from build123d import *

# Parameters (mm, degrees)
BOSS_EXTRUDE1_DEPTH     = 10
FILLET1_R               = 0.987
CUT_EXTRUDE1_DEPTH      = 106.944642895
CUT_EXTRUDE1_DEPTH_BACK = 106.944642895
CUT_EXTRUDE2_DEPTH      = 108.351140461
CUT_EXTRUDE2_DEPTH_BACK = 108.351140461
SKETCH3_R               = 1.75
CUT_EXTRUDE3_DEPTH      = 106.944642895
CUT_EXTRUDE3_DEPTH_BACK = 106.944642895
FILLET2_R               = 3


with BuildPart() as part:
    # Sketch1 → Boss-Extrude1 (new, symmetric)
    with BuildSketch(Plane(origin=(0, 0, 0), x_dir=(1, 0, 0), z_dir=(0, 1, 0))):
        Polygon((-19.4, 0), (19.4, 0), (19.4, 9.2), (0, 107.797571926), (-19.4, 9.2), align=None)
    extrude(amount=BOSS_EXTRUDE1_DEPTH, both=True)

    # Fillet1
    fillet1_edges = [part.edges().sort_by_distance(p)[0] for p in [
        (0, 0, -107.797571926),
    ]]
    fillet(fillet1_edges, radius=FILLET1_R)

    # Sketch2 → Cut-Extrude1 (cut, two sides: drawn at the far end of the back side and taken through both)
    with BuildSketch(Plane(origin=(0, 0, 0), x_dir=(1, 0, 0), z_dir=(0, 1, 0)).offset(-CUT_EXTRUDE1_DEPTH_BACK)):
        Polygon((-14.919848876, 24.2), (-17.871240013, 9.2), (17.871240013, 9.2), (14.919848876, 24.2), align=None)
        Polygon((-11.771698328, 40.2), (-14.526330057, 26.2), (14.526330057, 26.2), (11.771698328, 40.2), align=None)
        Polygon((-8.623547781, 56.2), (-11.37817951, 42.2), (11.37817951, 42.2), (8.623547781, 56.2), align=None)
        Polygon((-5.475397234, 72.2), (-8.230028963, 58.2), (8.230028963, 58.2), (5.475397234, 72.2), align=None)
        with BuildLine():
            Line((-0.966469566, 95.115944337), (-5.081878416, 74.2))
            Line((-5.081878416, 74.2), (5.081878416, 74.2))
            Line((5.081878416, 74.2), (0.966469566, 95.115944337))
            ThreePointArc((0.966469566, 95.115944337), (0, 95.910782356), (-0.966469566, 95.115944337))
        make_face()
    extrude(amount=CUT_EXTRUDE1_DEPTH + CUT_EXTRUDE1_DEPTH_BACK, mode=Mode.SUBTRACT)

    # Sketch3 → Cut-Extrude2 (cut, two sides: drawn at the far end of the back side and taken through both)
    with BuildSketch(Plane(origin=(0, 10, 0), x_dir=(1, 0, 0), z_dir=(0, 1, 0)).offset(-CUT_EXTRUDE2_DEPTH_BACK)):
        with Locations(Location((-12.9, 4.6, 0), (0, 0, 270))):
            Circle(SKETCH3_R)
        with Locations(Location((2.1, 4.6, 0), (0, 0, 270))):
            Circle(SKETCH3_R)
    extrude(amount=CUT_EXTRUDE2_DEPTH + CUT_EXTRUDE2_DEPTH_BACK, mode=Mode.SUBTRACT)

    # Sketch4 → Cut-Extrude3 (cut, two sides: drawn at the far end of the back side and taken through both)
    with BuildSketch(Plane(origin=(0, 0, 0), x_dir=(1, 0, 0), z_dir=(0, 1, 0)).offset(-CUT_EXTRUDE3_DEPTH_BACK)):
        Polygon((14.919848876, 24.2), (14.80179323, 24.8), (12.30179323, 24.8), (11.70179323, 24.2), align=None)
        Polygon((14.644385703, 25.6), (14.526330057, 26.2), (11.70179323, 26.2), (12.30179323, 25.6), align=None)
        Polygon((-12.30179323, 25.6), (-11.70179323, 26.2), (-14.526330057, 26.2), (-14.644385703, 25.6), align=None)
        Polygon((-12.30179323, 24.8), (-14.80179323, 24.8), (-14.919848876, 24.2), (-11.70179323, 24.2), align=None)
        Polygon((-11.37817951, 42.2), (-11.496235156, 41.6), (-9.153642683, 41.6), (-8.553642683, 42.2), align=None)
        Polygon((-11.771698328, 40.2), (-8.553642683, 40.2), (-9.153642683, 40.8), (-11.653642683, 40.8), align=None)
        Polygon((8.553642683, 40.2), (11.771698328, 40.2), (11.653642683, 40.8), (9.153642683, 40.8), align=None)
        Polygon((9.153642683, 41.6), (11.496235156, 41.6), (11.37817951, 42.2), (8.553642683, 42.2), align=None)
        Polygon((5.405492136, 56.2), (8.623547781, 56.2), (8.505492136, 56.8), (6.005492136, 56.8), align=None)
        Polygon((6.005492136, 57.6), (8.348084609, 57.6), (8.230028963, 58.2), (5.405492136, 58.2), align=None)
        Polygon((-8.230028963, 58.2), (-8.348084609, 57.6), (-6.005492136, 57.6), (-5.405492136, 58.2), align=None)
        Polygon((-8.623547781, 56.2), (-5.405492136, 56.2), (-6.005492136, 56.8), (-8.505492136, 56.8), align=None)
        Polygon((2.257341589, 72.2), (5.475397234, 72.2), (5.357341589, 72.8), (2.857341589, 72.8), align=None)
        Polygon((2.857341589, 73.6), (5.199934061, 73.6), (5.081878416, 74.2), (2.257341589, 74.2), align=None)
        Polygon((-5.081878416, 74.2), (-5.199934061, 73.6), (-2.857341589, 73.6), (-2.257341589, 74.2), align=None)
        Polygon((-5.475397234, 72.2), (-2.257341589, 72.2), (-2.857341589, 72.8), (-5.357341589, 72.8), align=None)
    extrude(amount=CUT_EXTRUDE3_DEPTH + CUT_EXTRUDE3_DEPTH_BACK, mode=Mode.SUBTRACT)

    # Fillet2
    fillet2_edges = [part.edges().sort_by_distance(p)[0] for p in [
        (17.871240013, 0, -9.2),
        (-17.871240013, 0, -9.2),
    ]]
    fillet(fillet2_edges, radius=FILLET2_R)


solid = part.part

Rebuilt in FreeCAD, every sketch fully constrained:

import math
import FreeCAD as App
import Part
import Sketcher
Q = App.Units.Quantity


def edges_at(feature, points):
    """Names of the edges that pass closest to the given points."""
    edges = feature.Shape.Edges
    near = lambda p: min(range(len(edges)), key=lambda i: edges[i].distToShape(Part.Vertex(*p))[0])
    return sorted({f"Edge{near(p) + 1}" for p in points})


def add_polygon(sketch, points):
    """Adds a closed chain of lines whose ends are joined by coincident constraints."""
    first, n = sketch.GeometryCount, len(points)
    for a, b in zip(points, points[1:] + points[:1]):
        sketch.addGeometry(Part.LineSegment(App.Vector(*a, 0), App.Vector(*b, 0)), False)
    for i in range(n):
        sketch.addConstraint(Sketcher.Constraint("Coincident", first + i, 2, first + (i + 1) % n, 1))

doc = App.newDocument("Part")
body = doc.addObject("PartDesign::Body", "Body")

sketch1 = body.newObject("Sketcher::SketchObject", "Sketch")
sketch1.AttachmentSupport = (doc.getObject("XZ_Plane"), [""])
sketch1.MapMode = "FlatFace"
add_polygon(sketch1, [(-19, 0), (19, 0), (19, -9), (0, -108), (-19, -9)])
sketch1.addConstraint([
    Sketcher.Constraint("Horizontal", 0),
    Sketcher.Constraint("Vertical", 1),
    Sketcher.Constraint("Vertical", 4),
    Sketcher.Constraint("Symmetric", 0, 2, 4, 2, -1, 1),
    Sketcher.Constraint("PointOnObject", 2, 2, -2),
    Sketcher.Constraint("Horizontal", 1, 2, 3, 2),
    Sketcher.Constraint("DistanceX", 0, 1, 0, 2, Q("38.8 mm")),
    Sketcher.Constraint("DistanceY", 1, 2, 1, 1, Q("9.2 mm")),
    Sketcher.Constraint("DistanceY", 2, 2, -1, 1, Q("107.797572 mm")),
])
pad1 = body.newObject("PartDesign::Pad", "Pad")
pad1.Profile = sketch1
pad1.Length = 20
pad1.Midplane = True
doc.recompute()

fillet = body.newObject("PartDesign::Fillet", "Fillet")
fillet.Base = (pad1, edges_at(pad1, [(0, 0, -107.798)]))
fillet.Radius = 0.987

sketch2 = body.newObject("Sketcher::SketchObject", "Sketch001")
sketch2.AttachmentSupport = (doc.getObject("XZ_Plane"), [""])
sketch2.MapMode = "FlatFace"
add_polygon(sketch2, [(-14.9, -24.2), (-17.9, -9.2), (17.9, -9.2), (14.9, -24.2)])
add_polygon(sketch2, [(-11.8, -40.2), (-14.5, -26.2), (14.5, -26.2), (11.8, -40.2)])
add_polygon(sketch2, [(-8.6, -56.2), (-11.4, -42.2), (11.4, -42.2), (8.6, -56.2)])
add_polygon(sketch2, [(-5.5, -72.2), (-8.2, -58.2), (8.2, -58.2), (5.5, -72.2)])
sketch2.addGeometry(Part.LineSegment(App.Vector(-1, -95.1, 0), App.Vector(-5.1, -74.2, 0)), False)
sketch2.addGeometry(Part.LineSegment(App.Vector(-5.1, -74.2, 0), App.Vector(5.1, -74.2, 0)), False)
sketch2.addGeometry(Part.LineSegment(App.Vector(5.1, -74.2, 0), App.Vector(1, -95.1, 0)), False)
sketch2.addGeometry(Part.ArcOfCircle(Part.Circle(App.Vector(0, -94.9, 0), App.Vector(0, 0, 1), 1), math.radians(-169), math.radians(-11)), False)
sketch2.addConstraint([
    Sketcher.Constraint("Coincident", 16, 2, 17, 1),
    Sketcher.Constraint("Coincident", 17, 2, 18, 1),
    Sketcher.Constraint("Tangent", 18, 2, 19, 2),
    Sketcher.Constraint("Tangent", 19, 1, 16, 1),
    Sketcher.Constraint("Horizontal", 1),
    Sketcher.Constraint("Horizontal", 3),
    Sketcher.Constraint("Horizontal", 5),
    Sketcher.Constraint("Horizontal", 7),
    Sketcher.Constraint("Horizontal", 9),
    Sketcher.Constraint("Horizontal", 11),
    Sketcher.Constraint("Horizontal", 13),
    Sketcher.Constraint("Horizontal", 15),
    Sketcher.Constraint("Horizontal", 17),
    Sketcher.Constraint("Symmetric", 18, 2, 19, 1, -2),
    Sketcher.Constraint("Parallel", 0, 4),
    Sketcher.Constraint("Parallel", 2, 6),
    Sketcher.Constraint("Parallel", 4, 8),
    Sketcher.Constraint("Parallel", 6, 10),
    Sketcher.Constraint("Parallel", 8, 12),
    Sketcher.Constraint("Parallel", 10, 14),
    Sketcher.Constraint("Parallel", 12, 16),
    Sketcher.Constraint("Parallel", 14, 18),
    Sketcher.Constraint("Equal", 6, 8),
    Sketcher.Constraint("Equal", 10, 12),
    Sketcher.Constraint("Radius", 19, Q("0.985 mm")),
    Sketcher.Constraint("DistanceY", 2, 2, 1, 2, Q("15 mm")),
    Sketcher.Constraint("DistanceY", 4, 2, 3, 2, Q("2 mm")),
    Sketcher.Constraint("DistanceY", 6, 2, 5, 2, Q("14 mm")),
    Sketcher.Constraint("DistanceY", 8, 2, 7, 2, Q("2 mm")),
    Sketcher.Constraint("DistanceY", 12, 2, 11, 2, Q("2 mm")),
    Sketcher.Constraint("DistanceY", 16, 2, 15, 2, Q("2 mm")),
    Sketcher.Constraint("DistanceY", 0, 2, -1, 1, Q("9.2 mm")),
    Sketcher.Constraint("Distance", 0, Q("15.2876 mm")),
    Sketcher.Constraint("DistanceX", 1, 1, 1, 2, Q("35.74248 mm")),
    Sketcher.Constraint("DistanceX", 5, 1, 5, 2, Q("29.05266 mm")),
    Sketcher.Constraint("DistanceX", 9, 1, 9, 2, Q("22.756359 mm")),
    Sketcher.Constraint("DistanceX", -1, 1, 6, 2, Q("11.771698 mm")),
    Sketcher.Constraint("DistanceX", 13, 1, 13, 2, Q("16.460058 mm")),
    Sketcher.Constraint("DistanceX", 17, 1, 17, 2, Q("10.163757 mm")),
    Sketcher.Constraint("DistanceX", 0, 2, -1, 1, Q("17.87124 mm")),
    Sketcher.Constraint("DistanceX", 8, 2, -1, 1, Q("11.37818 mm")),
    Sketcher.Constraint("DistanceX", 12, 2, -1, 1, Q("8.230029 mm")),
])
pocket1 = body.newObject("PartDesign::Pocket", "Pocket")
pocket1.Profile = sketch2
pocket1.Type = "ThroughAll"
pocket1.Midplane = True

sketch3 = body.newObject("Sketcher::SketchObject", "Sketch002")
sketch3.AttachmentSupport = (doc.getObject("XZ_Plane"), [""])
sketch3.MapMode = "FlatFace"
sketch3.AttachmentOffset = App.Placement(App.Vector(0, 0, -10), App.Rotation())
sketch3.addGeometry([
    Part.Circle(App.Vector(-12.9, -4.6, 0), App.Vector(0, 0, 1), 1.8),
    Part.Circle(App.Vector(2.1, -4.6, 0), App.Vector(0, 0, 1), 1.8),
], False)
sketch3.addConstraint([
    Sketcher.Constraint("Equal", 0, 1),
    Sketcher.Constraint("Horizontal", 0, 3, 1, 3),
    Sketcher.Constraint("Diameter", 0, Q("3.5 mm")),
    Sketcher.Constraint("DistanceX", 0, 3, 1, 3, Q("15 mm")),
    Sketcher.Constraint("DistanceX", 0, 3, -1, 1, Q("12.9 mm")),
    Sketcher.Constraint("DistanceY", 0, 3, -1, 1, Q("4.6 mm")),
])
pocket2 = body.newObject("PartDesign::Pocket", "Pocket001")
pocket2.Profile = sketch3
pocket2.Type = "ThroughAll"
pocket2.Midplane = True

sketch4 = body.newObject("Sketcher::SketchObject", "Sketch003")
sketch4.AttachmentSupport = (doc.getObject("XZ_Plane"), [""])
sketch4.MapMode = "FlatFace"
add_polygon(sketch4, [(14.9, -24.2), (14.8, -24.8), (12.3, -24.8), (11.7, -24.2)])
add_polygon(sketch4, [(14.6, -25.6), (14.5, -26.2), (11.7, -26.2), (12.3, -25.6)])
add_polygon(sketch4, [(-12.3, -25.6), (-11.7, -26.2), (-14.5, -26.2), (-14.6, -25.6)])
add_polygon(sketch4, [(-12.3, -24.8), (-14.8, -24.8), (-14.9, -24.2), (-11.7, -24.2)])
add_polygon(sketch4, [(-11.4, -42.2), (-11.5, -41.6), (-9.2, -41.6), (-8.6, -42.2)])
add_polygon(sketch4, [(-11.8, -40.2), (-8.6, -40.2), (-9.2, -40.8), (-11.7, -40.8)])
add_polygon(sketch4, [(8.6, -40.2), (11.8, -40.2), (11.7, -40.8), (9.2, -40.8)])
add_polygon(sketch4, [(9.2, -41.6), (11.5, -41.6), (11.4, -42.2), (8.6, -42.2)])
add_polygon(sketch4, [(5.4, -56.2), (8.6, -56.2), (8.5, -56.8), (6, -56.8)])
add_polygon(sketch4, [(6, -57.6), (8.3, -57.6), (8.2, -58.2), (5.4, -58.2)])
add_polygon(sketch4, [(-8.2, -58.2), (-8.3, -57.6), (-6, -57.6), (-5.4, -58.2)])
add_polygon(sketch4, [(-8.6, -56.2), (-5.4, -56.2), (-6, -56.8), (-8.5, -56.8)])
add_polygon(sketch4, [(2.3, -72.2), (5.5, -72.2), (5.4, -72.8), (2.9, -72.8)])
add_polygon(sketch4, [(2.9, -73.6), (5.2, -73.6), (5.1, -74.2), (2.3, -74.2)])
add_polygon(sketch4, [(-5.1, -74.2), (-5.2, -73.6), (-2.9, -73.6), (-2.3, -74.2)])
add_polygon(sketch4, [(-5.5, -72.2), (-2.3, -72.2), (-2.9, -72.8), (-5.4, -72.8)])
sketch4.addConstraint([
    Sketcher.Constraint("Horizontal", 1),
    Sketcher.Constraint("Horizontal", 3),
    Sketcher.Constraint("Horizontal", 5),
    Sketcher.Constraint("Horizontal", 7),
    Sketcher.Constraint("Horizontal", 9),
    Sketcher.Constraint("Horizontal", 11),
    Sketcher.Constraint("Horizontal", 12),
    Sketcher.Constraint("Horizontal", 14),
    Sketcher.Constraint("Horizontal", 17),
    Sketcher.Constraint("Horizontal", 19),
    Sketcher.Constraint("Horizontal", 20),
    Sketcher.Constraint("Horizontal", 22),
    Sketcher.Constraint("Horizontal", 24),
    Sketcher.Constraint("Horizontal", 26),
    Sketcher.Constraint("Horizontal", 28),
    Sketcher.Constraint("Horizontal", 30),
    Sketcher.Constraint("Horizontal", 32),
    Sketcher.Constraint("Horizontal", 34),
    Sketcher.Constraint("Horizontal", 36),
    Sketcher.Constraint("Horizontal", 38),
    Sketcher.Constraint("Horizontal", 41),
    Sketcher.Constraint("Horizontal", 43),
    Sketcher.Constraint("Horizontal", 44),
    Sketcher.Constraint("Horizontal", 46),
    Sketcher.Constraint("Horizontal", 48),
    Sketcher.Constraint("Horizontal", 50),
    Sketcher.Constraint("Horizontal", 52),
    Sketcher.Constraint("Horizontal", 54),
    Sketcher.Constraint("Horizontal", 57),
    Sketcher.Constraint("Horizontal", 59),
    Sketcher.Constraint("Horizontal", 60),
    Sketcher.Constraint("Horizontal", 62),
    Sketcher.Constraint("Symmetric", 5, 2, 8, 2, -2),
    Sketcher.Constraint("Symmetric", 7, 2, 10, 2, -2),
    Sketcher.Constraint("Symmetric", 0, 2, 12, 2, -2),
    Sketcher.Constraint("Symmetric", 3, 2, 13, 2, -2),
    Sketcher.Constraint("Symmetric", 23, 2, 24, 2, -2),
    Sketcher.Constraint("Symmetric", 22, 2, 25, 2, -2),
    Sketcher.Constraint("Symmetric", 16, 2, 28, 2, -2),
    Sketcher.Constraint("Symmetric", 19, 2, 29, 2, -2),
    Sketcher.Constraint("Symmetric", 36, 2, 40, 2, -2),
    Sketcher.Constraint("Symmetric", 38, 2, 42, 2, -2),
    Sketcher.Constraint("Symmetric", 35, 2, 44, 2, -2),
    Sketcher.Constraint("Symmetric", 34, 2, 45, 2, -2),
    Sketcher.Constraint("Symmetric", 52, 2, 56, 2, -2),
    Sketcher.Constraint("Symmetric", 54, 2, 58, 2, -2),
    Sketcher.Constraint("Symmetric", 51, 2, 60, 2, -2),
    Sketcher.Constraint("Symmetric", 50, 2, 61, 2, -2),
    Sketcher.Constraint("Parallel", 0, 4),
    Sketcher.Constraint("Perpendicular", 2, 6),
    Sketcher.Constraint("Perpendicular", 6, 8),
    Sketcher.Constraint("Parallel", 10, 13),
    Sketcher.Constraint("Perpendicular", 8, 15),
    Sketcher.Constraint("Parallel", 13, 16),
    Sketcher.Constraint("Perpendicular", 15, 18),
    Sketcher.Constraint("Perpendicular", 18, 21),
    Sketcher.Constraint("Parallel", 16, 23),
    Sketcher.Constraint("Perpendicular", 21, 27),
    Sketcher.Constraint("Perpendicular", 27, 31),
    Sketcher.Constraint("Parallel", 29, 33),
    Sketcher.Constraint("Perpendicular", 31, 35),
    Sketcher.Constraint("Parallel", 33, 37),
    Sketcher.Constraint("Perpendicular", 35, 39),
    Sketcher.Constraint("Parallel", 23, 40),
    Sketcher.Constraint("Perpendicular", 39, 42),
    Sketcher.Constraint("Perpendicular", 42, 45),
    Sketcher.Constraint("Parallel", 40, 47),
    Sketcher.Constraint("Parallel", 37, 49),
    Sketcher.Constraint("Perpendicular", 45, 51),
    Sketcher.Constraint("Parallel", 49, 53),
    Sketcher.Constraint("Perpendicular", 51, 55),
    Sketcher.Constraint("Parallel", 47, 56),
    Sketcher.Constraint("Perpendicular", 55, 58),
    Sketcher.Constraint("Parallel", 56, 63),
    Sketcher.Constraint("Vertical", 2, 2, 5, 2),
    Sketcher.Constraint("Vertical", 1, 2, 6, 2),
    Sketcher.Constraint("Vertical", 8, 2, 14, 2),
    Sketcher.Constraint("Vertical", 18, 2, 20, 2),
    Sketcher.Constraint("Vertical", 17, 2, 21, 2),
    Sketcher.Constraint("Vertical", 27, 2, 30, 2),
    Sketcher.Constraint("Vertical", 35, 2, 38, 2),
    Sketcher.Constraint("Vertical", 34, 2, 39, 2),
    Sketcher.Constraint("Vertical", 51, 2, 54, 2),
    Sketcher.Constraint("Vertical", 50, 2, 55, 2),
    Sketcher.Constraint("Equal", 11, 17),
    Sketcher.Constraint("Equal", 9, 19),
    Sketcher.Constraint("Equal", 14, 20),
    Sketcher.Constraint("Equal", 20, 24),
    Sketcher.Constraint("Equal", 24, 32),
    Sketcher.Constraint("Equal", 26, 34),
    Sketcher.Constraint("Equal", 28, 36),
    Sketcher.Constraint("Equal", 32, 44),
    Sketcher.Constraint("Equal", 44, 48),
    Sketcher.Constraint("Equal", 46, 50),
    Sketcher.Constraint("Equal", 41, 52),
    Sketcher.Constraint("Equal", 48, 60),
    Sketcher.Constraint("DistanceX", 1, 2, 1, 1, Q("2.5 mm")),
    Sketcher.Constraint("DistanceY", 0, 2, -1, 1, Q("24.8 mm")),
    Sketcher.Constraint("DistanceY", 2, 2, -1, 1, Q("24.2 mm")),
    Sketcher.Constraint("DistanceY", 4, 2, -1, 1, Q("26.2 mm")),
    Sketcher.Constraint("DistanceY", 16, 2, -1, 1, Q("41.6 mm")),
    Sketcher.Constraint("DistanceY", 20, 2, -1, 1, Q("40.2 mm")),
    Sketcher.Constraint("DistanceY", 32, 2, -1, 1, Q("56.2 mm")),
    Sketcher.Constraint("DistanceY", 36, 2, -1, 1, Q("57.6 mm")),
    Sketcher.Constraint("DistanceY", 48, 2, -1, 1, Q("72.2 mm")),
    Sketcher.Constraint("DistanceY", 52, 2, -1, 1, Q("73.6 mm")),
    Sketcher.Constraint("DistanceX", 23, 2, -1, 1, Q("11.771698 mm")),
    Sketcher.Constraint("DistanceX", 3, 1, 3, 2, Q("3.218056 mm")),
    Sketcher.Constraint("DistanceX", 5, 2, 5, 1, Q("2.824537 mm")),
    Sketcher.Constraint("DistanceX", -1, 1, 3, 2, Q("14.919849 mm")),
    Sketcher.Constraint("DistanceX", -1, 1, 37, 2, Q("8.230029 mm")),
    Sketcher.Constraint("DistanceX", -1, 1, 49, 2, Q("5.357342 mm")),
])
pocket3 = body.newObject("PartDesign::Pocket", "Pocket002")
pocket3.Profile = sketch4
pocket3.Type = "ThroughAll"
pocket3.Midplane = True
doc.recompute()

fillet2 = body.newObject("PartDesign::Fillet", "Fillet001")
fillet2.Base = (pocket3, edges_at(pocket3, [(17.871, 0, -9.2), (-17.871, 0, -9.2)]))
fillet2.Radius = 3

doc.recompute()
